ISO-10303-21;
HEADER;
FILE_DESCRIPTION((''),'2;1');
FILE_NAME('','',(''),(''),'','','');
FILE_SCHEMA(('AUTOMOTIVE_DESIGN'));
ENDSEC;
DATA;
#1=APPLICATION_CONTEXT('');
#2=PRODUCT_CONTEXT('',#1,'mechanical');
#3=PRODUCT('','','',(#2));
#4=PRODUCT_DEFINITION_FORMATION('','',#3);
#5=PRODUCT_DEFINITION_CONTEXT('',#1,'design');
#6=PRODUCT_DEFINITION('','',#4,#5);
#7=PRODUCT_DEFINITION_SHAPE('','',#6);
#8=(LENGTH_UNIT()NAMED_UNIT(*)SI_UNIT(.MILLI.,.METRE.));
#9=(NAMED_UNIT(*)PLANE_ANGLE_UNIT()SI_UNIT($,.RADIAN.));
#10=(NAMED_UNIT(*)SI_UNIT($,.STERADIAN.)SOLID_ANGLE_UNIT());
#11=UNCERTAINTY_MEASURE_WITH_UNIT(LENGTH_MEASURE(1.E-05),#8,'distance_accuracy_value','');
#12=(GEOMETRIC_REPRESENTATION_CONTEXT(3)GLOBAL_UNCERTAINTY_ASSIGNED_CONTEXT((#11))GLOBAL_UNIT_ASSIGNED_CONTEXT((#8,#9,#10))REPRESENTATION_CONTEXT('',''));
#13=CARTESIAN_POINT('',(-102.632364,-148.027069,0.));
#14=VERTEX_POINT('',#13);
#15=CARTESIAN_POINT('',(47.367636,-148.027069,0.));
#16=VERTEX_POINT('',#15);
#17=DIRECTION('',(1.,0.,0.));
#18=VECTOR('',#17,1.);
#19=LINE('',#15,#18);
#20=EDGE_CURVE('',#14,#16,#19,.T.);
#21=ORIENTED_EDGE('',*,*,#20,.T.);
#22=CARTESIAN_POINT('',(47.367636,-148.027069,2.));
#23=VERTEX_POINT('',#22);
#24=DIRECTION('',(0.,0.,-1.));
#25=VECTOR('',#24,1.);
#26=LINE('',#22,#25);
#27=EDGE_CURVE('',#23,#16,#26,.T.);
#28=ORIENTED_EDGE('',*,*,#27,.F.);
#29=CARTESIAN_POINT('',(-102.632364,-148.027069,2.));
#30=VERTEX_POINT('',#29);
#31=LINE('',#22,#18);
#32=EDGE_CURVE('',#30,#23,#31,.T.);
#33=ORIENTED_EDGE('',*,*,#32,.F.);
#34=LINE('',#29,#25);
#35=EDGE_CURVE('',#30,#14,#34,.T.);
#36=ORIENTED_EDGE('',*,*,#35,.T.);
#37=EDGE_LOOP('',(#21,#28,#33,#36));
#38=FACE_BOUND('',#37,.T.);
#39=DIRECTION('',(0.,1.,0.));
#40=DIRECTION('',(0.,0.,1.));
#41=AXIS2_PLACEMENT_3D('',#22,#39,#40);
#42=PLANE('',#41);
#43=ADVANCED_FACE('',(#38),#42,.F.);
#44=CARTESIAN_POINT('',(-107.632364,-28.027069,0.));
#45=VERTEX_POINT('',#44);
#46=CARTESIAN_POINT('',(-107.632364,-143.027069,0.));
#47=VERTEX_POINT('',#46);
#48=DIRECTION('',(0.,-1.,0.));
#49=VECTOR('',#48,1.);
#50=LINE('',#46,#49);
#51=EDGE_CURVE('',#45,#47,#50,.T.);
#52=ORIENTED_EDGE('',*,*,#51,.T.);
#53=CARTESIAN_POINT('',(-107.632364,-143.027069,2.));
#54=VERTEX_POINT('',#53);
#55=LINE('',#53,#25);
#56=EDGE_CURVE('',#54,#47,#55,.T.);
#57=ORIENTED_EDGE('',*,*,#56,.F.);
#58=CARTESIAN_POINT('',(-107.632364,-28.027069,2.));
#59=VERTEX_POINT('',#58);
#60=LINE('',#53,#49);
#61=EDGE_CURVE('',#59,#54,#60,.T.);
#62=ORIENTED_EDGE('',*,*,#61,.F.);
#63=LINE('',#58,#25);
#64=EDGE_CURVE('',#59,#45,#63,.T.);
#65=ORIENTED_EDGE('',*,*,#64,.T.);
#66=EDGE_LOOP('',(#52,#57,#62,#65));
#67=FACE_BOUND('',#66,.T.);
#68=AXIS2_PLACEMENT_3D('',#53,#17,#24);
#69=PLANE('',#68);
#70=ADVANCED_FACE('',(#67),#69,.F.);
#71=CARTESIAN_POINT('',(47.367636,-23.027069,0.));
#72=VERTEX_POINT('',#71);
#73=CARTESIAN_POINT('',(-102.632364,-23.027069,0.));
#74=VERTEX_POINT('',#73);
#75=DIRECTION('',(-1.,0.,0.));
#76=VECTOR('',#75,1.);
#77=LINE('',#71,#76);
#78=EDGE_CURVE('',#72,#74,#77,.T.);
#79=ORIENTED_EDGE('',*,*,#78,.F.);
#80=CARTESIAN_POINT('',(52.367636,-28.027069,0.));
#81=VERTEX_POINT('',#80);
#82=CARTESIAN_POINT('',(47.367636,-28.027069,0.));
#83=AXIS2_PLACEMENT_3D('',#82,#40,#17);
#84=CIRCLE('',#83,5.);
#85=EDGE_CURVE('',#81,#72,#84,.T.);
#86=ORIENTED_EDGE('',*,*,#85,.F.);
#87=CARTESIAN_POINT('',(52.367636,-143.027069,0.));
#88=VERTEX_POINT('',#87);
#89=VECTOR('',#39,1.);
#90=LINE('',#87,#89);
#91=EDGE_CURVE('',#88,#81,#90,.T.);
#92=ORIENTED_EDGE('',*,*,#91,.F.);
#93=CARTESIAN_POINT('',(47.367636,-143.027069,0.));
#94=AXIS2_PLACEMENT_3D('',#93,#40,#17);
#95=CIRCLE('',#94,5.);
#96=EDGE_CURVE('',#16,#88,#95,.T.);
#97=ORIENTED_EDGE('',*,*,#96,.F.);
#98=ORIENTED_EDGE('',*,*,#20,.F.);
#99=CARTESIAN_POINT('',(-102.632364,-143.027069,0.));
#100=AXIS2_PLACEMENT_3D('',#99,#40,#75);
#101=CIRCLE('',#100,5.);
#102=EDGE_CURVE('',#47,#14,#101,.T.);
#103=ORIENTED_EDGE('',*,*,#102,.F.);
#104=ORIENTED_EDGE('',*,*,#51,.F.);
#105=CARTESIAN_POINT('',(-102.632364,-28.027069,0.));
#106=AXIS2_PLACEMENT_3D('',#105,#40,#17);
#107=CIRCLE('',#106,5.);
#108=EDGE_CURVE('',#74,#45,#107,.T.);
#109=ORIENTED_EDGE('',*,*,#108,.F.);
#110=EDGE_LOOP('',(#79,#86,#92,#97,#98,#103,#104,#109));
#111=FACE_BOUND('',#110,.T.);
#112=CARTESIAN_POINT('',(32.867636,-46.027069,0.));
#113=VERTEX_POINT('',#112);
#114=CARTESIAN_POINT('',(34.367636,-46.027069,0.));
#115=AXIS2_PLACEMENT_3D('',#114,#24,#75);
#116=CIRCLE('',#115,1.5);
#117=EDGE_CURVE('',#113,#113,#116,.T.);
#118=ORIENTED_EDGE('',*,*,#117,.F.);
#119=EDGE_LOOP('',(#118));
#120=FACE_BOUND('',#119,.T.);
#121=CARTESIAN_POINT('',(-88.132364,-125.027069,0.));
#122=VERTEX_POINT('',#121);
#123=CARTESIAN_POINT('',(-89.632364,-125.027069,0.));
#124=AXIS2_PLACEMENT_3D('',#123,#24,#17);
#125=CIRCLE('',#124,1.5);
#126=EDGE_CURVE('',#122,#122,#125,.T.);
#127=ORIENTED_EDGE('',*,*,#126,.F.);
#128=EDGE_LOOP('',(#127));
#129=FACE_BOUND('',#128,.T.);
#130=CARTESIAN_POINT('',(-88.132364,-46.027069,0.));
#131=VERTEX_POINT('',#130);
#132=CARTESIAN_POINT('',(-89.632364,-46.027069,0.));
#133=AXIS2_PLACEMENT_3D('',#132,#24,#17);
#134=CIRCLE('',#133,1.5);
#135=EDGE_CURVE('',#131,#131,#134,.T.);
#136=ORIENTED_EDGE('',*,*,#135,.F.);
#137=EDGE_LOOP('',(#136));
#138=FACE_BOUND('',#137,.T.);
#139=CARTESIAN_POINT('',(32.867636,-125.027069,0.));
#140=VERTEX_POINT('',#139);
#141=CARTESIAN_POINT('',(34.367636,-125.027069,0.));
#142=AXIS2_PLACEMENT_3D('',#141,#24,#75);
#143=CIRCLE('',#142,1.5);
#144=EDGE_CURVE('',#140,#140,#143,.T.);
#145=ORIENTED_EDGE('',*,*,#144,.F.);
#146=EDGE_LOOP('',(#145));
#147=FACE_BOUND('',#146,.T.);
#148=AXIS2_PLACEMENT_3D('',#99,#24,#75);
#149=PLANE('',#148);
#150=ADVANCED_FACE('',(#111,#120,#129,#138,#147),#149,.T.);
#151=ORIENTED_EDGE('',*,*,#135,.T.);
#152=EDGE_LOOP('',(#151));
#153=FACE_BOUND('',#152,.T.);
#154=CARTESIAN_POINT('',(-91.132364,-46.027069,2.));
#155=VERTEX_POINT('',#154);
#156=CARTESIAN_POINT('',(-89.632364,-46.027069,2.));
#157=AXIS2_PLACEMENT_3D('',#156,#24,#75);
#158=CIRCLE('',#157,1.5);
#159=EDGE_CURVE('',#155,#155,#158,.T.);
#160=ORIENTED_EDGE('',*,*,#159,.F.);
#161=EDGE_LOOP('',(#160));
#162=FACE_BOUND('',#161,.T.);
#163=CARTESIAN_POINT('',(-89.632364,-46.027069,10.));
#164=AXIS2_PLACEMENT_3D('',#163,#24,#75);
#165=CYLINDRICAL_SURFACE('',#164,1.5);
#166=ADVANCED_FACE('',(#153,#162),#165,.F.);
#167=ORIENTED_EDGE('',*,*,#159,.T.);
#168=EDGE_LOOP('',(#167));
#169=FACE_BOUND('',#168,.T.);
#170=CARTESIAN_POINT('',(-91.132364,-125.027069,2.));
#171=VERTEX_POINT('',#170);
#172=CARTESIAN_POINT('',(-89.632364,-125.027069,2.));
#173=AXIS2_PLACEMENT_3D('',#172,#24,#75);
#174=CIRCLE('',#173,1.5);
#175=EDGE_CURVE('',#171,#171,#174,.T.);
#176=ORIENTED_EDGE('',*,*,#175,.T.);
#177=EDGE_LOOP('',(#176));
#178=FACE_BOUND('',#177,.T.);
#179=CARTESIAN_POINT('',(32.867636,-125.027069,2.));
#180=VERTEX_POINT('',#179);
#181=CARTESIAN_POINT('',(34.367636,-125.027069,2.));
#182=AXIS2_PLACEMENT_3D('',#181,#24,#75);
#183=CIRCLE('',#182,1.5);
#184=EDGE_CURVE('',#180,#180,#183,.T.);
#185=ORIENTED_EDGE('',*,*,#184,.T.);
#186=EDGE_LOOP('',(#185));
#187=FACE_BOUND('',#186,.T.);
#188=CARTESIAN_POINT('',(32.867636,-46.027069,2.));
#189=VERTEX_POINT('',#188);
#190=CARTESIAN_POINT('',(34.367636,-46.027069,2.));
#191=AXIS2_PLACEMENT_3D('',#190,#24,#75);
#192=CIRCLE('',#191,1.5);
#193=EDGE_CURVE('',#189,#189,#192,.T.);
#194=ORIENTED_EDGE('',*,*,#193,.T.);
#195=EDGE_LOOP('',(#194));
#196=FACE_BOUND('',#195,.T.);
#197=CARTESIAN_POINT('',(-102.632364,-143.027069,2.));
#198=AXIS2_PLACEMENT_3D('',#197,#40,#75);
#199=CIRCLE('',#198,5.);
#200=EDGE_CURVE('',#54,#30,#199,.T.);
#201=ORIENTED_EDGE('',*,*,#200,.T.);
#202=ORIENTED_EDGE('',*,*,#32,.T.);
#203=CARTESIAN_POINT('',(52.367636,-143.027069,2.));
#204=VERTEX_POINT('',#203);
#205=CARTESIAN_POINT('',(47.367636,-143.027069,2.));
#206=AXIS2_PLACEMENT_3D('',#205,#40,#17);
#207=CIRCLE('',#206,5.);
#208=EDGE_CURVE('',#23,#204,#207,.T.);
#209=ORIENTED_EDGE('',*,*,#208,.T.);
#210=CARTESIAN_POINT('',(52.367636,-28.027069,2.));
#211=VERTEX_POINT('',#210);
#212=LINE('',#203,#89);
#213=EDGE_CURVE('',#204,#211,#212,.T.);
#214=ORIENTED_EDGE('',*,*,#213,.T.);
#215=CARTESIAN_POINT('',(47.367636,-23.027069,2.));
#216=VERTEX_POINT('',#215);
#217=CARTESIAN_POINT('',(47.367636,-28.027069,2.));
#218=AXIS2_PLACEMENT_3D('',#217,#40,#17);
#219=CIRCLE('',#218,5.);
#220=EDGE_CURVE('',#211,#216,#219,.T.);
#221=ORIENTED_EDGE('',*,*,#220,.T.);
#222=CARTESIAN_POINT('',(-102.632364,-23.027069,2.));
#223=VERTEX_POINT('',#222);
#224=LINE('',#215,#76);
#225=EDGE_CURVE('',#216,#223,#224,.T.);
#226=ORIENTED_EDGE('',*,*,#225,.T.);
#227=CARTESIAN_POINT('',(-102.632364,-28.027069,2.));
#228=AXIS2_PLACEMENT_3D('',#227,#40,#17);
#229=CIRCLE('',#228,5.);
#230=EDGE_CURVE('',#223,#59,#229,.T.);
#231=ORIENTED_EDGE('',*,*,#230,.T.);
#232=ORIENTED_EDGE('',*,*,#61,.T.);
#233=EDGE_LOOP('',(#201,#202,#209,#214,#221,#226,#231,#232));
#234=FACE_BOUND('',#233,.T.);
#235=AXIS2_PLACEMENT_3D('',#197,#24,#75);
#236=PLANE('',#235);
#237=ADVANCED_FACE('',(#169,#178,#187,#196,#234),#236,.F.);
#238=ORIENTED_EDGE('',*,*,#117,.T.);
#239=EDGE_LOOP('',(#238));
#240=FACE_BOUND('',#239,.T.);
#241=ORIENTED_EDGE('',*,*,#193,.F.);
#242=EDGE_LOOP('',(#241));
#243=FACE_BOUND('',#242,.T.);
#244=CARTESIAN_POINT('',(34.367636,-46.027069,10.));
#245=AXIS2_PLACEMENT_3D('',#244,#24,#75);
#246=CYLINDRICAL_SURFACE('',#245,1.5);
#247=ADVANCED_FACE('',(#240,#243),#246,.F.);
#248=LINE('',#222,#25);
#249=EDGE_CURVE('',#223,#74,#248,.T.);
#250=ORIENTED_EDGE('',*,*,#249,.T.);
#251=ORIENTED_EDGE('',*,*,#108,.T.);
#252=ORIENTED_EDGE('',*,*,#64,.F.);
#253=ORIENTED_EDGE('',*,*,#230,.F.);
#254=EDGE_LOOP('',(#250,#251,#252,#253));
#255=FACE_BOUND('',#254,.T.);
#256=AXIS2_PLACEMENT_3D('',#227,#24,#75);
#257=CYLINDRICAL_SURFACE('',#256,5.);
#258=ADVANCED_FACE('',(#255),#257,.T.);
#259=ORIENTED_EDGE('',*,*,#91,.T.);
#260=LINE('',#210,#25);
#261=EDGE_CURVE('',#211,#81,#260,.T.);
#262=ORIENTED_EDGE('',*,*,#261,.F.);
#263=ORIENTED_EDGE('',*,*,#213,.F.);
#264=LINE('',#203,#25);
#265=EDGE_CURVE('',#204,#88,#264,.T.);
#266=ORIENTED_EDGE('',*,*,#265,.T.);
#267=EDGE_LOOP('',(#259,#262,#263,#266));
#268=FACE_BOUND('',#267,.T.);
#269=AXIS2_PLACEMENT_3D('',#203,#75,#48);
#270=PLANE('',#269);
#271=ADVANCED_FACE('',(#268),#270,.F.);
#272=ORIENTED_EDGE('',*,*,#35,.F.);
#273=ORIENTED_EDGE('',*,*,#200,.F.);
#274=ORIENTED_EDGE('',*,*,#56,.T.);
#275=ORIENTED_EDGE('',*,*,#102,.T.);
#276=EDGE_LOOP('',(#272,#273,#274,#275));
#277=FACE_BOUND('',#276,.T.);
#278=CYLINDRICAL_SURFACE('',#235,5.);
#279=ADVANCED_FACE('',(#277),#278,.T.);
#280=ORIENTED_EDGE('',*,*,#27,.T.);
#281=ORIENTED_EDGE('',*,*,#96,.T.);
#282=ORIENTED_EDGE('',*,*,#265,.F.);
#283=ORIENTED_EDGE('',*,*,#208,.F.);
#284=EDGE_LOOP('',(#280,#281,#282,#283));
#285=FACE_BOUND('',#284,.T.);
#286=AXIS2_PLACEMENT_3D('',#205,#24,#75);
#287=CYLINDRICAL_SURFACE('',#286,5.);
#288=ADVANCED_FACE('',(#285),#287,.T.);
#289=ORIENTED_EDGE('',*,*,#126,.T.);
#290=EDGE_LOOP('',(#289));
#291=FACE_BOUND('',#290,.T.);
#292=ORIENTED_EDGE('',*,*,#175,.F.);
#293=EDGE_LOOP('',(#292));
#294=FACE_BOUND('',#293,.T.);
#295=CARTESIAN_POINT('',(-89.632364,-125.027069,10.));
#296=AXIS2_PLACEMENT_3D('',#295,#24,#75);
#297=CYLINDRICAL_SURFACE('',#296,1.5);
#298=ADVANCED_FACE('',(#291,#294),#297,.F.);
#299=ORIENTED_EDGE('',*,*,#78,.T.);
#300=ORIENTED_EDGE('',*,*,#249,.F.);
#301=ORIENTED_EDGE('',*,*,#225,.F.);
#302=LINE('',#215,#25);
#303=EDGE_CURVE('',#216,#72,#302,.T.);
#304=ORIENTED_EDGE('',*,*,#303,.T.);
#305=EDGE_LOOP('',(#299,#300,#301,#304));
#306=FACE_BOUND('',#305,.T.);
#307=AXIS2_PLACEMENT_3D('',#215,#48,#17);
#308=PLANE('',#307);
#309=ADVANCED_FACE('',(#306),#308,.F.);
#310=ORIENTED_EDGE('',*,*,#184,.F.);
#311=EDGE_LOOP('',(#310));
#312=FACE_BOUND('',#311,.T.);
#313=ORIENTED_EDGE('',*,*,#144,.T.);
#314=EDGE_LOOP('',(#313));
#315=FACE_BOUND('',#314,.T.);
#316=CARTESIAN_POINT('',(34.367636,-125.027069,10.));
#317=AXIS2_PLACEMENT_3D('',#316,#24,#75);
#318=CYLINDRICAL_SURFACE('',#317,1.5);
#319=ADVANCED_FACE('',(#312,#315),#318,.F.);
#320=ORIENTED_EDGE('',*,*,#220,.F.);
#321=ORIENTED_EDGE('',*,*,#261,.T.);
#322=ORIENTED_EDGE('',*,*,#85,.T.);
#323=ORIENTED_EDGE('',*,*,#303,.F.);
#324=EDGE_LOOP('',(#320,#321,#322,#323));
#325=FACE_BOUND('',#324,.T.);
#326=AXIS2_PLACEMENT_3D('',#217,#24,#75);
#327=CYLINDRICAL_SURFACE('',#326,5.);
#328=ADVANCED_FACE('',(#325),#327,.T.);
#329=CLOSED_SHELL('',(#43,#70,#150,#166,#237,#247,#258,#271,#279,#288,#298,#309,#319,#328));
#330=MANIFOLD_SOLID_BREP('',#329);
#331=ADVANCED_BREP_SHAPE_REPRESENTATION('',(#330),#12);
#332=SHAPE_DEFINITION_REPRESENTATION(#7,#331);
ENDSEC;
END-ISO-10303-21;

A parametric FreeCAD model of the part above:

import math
import FreeCAD as App
import Part
import Sketcher

V = App.Vector
Q = App.Units.Quantity

doc = App.newDocument("Part")
body = doc.addObject("PartDesign::Body", "Body")

sketch1 = doc.addObject("Sketcher::SketchObject", "Sketch")
body.addObject(sketch1)
sketch1.AttachmentSupport = (doc.XY_Plane, [""])
sketch1.MapMode = "FlatFace"
sketch1.addGeometry([
    Part.LineSegment(V(-103, -148, 0), V(47, -148, 0)),
    Part.ArcOfCircle(Part.Circle(V(47, -143, 0), V(0, 0, 1), 5), math.radians(-90), math.radians(0)),
    Part.LineSegment(V(52, -143, 0), V(52, -28, 0)),
    Part.ArcOfCircle(Part.Circle(V(47, -28, 0), V(0, 0, 1), 5), math.radians(0), math.radians(90)),
    Part.LineSegment(V(47, -23, 0), V(-103, -23, 0)),
    Part.ArcOfCircle(Part.Circle(V(-103, -28, 0), V(0, 0, 1), 5), math.radians(90), math.radians(180)),
    Part.LineSegment(V(-108, -28, 0), V(-108, -143, 0)),
    Part.ArcOfCircle(Part.Circle(V(-103, -143, 0), V(0, 0, 1), 5), math.radians(180), math.radians(270)),
], False)
sketch1.addConstraint([
    Sketcher.Constraint("Tangent", 0, 2, 1, 1),
    Sketcher.Constraint("Tangent", 1, 2, 2, 1),
    Sketcher.Constraint("Tangent", 2, 2, 3, 1),
    Sketcher.Constraint("Tangent", 3, 2, 4, 1),
    Sketcher.Constraint("Tangent", 4, 2, 5, 1),
    Sketcher.Constraint("Tangent", 5, 2, 6, 1),
    Sketcher.Constraint("Tangent", 6, 2, 7, 1),
    Sketcher.Constraint("Tangent", 7, 2, 0, 1),
    Sketcher.Constraint("Horizontal", 0),
    Sketcher.Constraint("Vertical", 2),
    Sketcher.Constraint("Horizontal", 4),
    Sketcher.Constraint("Vertical", 6),
    Sketcher.Constraint("Equal", 1, 3),
    Sketcher.Constraint("Equal", 3, 5),
    Sketcher.Constraint("Equal", 5, 7),
    Sketcher.Constraint("Radius", 1, Q("5 mm")),
    Sketcher.Constraint("DistanceX", 0, 1, 0, 2, Q("150 mm")),
    Sketcher.Constraint("DistanceY", 2, 1, 2, 2, Q("115 mm")),
    Sketcher.Constraint("DistanceY", 1, 3, -1, 1, Q("143.027069 mm")),
    Sketcher.Constraint("DistanceX", -1, 1, 1, 3, Q("47.367636 mm")),
])
pad1 = doc.addObject("PartDesign::Pad", "Pad")
body.addObject(pad1)
pad1.Profile = sketch1
pad1.Length = 2

sketch2 = doc.addObject("Sketcher::SketchObject", "Sketch001")
body.addObject(sketch2)
sketch2.AttachmentSupport = (doc.XY_Plane, [""])
sketch2.MapMode = "FlatFace"
sketch2.addGeometry([
    Part.Circle(V(34.4, -125, 0), V(0, 0, 1), 1.5),
    Part.Circle(V(34.4, -46, 0), V(0, 0, 1), 1.5),
    Part.Circle(V(-89.6, -46, 0), V(0, 0, 1), 1.5),
    Part.Circle(V(-89.6, -125, 0), V(0, 0, 1), 1.5),
], False)
sketch2.addConstraint([
    Sketcher.Constraint("Equal", 0, 1),
    Sketcher.Constraint("Equal", 1, 2),
    Sketcher.Constraint("Equal", 2, 3),
    Sketcher.Constraint("Horizontal", 1, 3, 2, 3),
    Sketcher.Constraint("Horizontal", 0, 3, 3, 3),
    Sketcher.Constraint("Vertical", 0, 3, 1, 3),
    Sketcher.Constraint("Vertical", 2, 3, 3, 3),
    Sketcher.Constraint("Diameter", 0, Q("3 mm")),
    Sketcher.Constraint("DistanceY", 0, 3, 1, 3, Q("79 mm")),
    Sketcher.Constraint("DistanceX", 2, 3, 1, 3, Q("124 mm")),
    Sketcher.Constraint("DistanceY", 0, 3, -1, 1, Q("125.027069 mm")),
    Sketcher.Constraint("DistanceX", -1, 1, 0, 3, Q("34.367636 mm")),
])
pocket1 = doc.addObject("PartDesign::Pocket", "Pocket")
body.addObject(pocket1)
pocket1.Profile = sketch2
pocket1.Length = 10
pocket1.Reversed = True

doc.recompute()
